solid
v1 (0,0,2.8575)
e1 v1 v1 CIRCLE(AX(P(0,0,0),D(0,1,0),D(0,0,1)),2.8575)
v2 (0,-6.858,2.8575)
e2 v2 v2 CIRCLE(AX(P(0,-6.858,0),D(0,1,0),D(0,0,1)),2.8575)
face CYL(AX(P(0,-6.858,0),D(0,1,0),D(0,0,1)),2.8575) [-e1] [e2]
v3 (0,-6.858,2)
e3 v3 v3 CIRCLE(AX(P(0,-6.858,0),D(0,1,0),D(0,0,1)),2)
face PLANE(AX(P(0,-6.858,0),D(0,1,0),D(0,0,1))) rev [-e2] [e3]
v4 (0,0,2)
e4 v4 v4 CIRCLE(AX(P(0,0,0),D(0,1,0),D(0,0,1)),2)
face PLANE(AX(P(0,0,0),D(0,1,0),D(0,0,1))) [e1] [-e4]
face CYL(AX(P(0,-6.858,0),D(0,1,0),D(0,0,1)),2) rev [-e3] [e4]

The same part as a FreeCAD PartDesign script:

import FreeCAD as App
import Part
import Sketcher
from FreeCAD import Vector
Q = App.Units.Quantity

doc = App.newDocument("Part")
params = doc.addObject("Spreadsheet::Sheet", "Params")
for row, (alias, value) in enumerate([
    ("sketch1_diameter", "0.225 in"),
    ("pad1_length", "0.27 in"),
], start=1):
    params.set(f"A{row}", alias)
    params.set(f"B{row}", "=" + value)
    params.setAlias(f"B{row}", alias)

body = doc.addObject("PartDesign::Body", "Body")

sketch1 = doc.addObject("Sketcher::SketchObject", "Sketch")
body.addObject(sketch1)
sketch1.AttachmentSupport = (doc.XZ_Plane, [""])
sketch1.MapMode = "FlatFace"
sketch1.addGeometry([
    Part.Circle(Vector(0, 0, 0), Vector(0, 0, 1), 2.9),
    Part.Circle(Vector(0, 0, 0), Vector(0, 0, 1), 2),
], False)
sketch1.addConstraint([
    Sketcher.Constraint("Coincident", 0, 3, -1, 1),
    Sketcher.Constraint("Coincident", 1, 3, -1, 1),
    Sketcher.Constraint("Diameter", 0, Q("0.225 in")),
    Sketcher.Constraint("Diameter", 1, Q("4 mm")),
])
sketch1.setExpression("Constraints[2]", "Params.sketch1_diameter")
pad1 = doc.addObject("PartDesign::Pad", "Pad")
body.addObject(pad1)
pad1.Profile = sketch1
pad1.setExpression("Length", "Params.pad1_length")

doc.recompute()
